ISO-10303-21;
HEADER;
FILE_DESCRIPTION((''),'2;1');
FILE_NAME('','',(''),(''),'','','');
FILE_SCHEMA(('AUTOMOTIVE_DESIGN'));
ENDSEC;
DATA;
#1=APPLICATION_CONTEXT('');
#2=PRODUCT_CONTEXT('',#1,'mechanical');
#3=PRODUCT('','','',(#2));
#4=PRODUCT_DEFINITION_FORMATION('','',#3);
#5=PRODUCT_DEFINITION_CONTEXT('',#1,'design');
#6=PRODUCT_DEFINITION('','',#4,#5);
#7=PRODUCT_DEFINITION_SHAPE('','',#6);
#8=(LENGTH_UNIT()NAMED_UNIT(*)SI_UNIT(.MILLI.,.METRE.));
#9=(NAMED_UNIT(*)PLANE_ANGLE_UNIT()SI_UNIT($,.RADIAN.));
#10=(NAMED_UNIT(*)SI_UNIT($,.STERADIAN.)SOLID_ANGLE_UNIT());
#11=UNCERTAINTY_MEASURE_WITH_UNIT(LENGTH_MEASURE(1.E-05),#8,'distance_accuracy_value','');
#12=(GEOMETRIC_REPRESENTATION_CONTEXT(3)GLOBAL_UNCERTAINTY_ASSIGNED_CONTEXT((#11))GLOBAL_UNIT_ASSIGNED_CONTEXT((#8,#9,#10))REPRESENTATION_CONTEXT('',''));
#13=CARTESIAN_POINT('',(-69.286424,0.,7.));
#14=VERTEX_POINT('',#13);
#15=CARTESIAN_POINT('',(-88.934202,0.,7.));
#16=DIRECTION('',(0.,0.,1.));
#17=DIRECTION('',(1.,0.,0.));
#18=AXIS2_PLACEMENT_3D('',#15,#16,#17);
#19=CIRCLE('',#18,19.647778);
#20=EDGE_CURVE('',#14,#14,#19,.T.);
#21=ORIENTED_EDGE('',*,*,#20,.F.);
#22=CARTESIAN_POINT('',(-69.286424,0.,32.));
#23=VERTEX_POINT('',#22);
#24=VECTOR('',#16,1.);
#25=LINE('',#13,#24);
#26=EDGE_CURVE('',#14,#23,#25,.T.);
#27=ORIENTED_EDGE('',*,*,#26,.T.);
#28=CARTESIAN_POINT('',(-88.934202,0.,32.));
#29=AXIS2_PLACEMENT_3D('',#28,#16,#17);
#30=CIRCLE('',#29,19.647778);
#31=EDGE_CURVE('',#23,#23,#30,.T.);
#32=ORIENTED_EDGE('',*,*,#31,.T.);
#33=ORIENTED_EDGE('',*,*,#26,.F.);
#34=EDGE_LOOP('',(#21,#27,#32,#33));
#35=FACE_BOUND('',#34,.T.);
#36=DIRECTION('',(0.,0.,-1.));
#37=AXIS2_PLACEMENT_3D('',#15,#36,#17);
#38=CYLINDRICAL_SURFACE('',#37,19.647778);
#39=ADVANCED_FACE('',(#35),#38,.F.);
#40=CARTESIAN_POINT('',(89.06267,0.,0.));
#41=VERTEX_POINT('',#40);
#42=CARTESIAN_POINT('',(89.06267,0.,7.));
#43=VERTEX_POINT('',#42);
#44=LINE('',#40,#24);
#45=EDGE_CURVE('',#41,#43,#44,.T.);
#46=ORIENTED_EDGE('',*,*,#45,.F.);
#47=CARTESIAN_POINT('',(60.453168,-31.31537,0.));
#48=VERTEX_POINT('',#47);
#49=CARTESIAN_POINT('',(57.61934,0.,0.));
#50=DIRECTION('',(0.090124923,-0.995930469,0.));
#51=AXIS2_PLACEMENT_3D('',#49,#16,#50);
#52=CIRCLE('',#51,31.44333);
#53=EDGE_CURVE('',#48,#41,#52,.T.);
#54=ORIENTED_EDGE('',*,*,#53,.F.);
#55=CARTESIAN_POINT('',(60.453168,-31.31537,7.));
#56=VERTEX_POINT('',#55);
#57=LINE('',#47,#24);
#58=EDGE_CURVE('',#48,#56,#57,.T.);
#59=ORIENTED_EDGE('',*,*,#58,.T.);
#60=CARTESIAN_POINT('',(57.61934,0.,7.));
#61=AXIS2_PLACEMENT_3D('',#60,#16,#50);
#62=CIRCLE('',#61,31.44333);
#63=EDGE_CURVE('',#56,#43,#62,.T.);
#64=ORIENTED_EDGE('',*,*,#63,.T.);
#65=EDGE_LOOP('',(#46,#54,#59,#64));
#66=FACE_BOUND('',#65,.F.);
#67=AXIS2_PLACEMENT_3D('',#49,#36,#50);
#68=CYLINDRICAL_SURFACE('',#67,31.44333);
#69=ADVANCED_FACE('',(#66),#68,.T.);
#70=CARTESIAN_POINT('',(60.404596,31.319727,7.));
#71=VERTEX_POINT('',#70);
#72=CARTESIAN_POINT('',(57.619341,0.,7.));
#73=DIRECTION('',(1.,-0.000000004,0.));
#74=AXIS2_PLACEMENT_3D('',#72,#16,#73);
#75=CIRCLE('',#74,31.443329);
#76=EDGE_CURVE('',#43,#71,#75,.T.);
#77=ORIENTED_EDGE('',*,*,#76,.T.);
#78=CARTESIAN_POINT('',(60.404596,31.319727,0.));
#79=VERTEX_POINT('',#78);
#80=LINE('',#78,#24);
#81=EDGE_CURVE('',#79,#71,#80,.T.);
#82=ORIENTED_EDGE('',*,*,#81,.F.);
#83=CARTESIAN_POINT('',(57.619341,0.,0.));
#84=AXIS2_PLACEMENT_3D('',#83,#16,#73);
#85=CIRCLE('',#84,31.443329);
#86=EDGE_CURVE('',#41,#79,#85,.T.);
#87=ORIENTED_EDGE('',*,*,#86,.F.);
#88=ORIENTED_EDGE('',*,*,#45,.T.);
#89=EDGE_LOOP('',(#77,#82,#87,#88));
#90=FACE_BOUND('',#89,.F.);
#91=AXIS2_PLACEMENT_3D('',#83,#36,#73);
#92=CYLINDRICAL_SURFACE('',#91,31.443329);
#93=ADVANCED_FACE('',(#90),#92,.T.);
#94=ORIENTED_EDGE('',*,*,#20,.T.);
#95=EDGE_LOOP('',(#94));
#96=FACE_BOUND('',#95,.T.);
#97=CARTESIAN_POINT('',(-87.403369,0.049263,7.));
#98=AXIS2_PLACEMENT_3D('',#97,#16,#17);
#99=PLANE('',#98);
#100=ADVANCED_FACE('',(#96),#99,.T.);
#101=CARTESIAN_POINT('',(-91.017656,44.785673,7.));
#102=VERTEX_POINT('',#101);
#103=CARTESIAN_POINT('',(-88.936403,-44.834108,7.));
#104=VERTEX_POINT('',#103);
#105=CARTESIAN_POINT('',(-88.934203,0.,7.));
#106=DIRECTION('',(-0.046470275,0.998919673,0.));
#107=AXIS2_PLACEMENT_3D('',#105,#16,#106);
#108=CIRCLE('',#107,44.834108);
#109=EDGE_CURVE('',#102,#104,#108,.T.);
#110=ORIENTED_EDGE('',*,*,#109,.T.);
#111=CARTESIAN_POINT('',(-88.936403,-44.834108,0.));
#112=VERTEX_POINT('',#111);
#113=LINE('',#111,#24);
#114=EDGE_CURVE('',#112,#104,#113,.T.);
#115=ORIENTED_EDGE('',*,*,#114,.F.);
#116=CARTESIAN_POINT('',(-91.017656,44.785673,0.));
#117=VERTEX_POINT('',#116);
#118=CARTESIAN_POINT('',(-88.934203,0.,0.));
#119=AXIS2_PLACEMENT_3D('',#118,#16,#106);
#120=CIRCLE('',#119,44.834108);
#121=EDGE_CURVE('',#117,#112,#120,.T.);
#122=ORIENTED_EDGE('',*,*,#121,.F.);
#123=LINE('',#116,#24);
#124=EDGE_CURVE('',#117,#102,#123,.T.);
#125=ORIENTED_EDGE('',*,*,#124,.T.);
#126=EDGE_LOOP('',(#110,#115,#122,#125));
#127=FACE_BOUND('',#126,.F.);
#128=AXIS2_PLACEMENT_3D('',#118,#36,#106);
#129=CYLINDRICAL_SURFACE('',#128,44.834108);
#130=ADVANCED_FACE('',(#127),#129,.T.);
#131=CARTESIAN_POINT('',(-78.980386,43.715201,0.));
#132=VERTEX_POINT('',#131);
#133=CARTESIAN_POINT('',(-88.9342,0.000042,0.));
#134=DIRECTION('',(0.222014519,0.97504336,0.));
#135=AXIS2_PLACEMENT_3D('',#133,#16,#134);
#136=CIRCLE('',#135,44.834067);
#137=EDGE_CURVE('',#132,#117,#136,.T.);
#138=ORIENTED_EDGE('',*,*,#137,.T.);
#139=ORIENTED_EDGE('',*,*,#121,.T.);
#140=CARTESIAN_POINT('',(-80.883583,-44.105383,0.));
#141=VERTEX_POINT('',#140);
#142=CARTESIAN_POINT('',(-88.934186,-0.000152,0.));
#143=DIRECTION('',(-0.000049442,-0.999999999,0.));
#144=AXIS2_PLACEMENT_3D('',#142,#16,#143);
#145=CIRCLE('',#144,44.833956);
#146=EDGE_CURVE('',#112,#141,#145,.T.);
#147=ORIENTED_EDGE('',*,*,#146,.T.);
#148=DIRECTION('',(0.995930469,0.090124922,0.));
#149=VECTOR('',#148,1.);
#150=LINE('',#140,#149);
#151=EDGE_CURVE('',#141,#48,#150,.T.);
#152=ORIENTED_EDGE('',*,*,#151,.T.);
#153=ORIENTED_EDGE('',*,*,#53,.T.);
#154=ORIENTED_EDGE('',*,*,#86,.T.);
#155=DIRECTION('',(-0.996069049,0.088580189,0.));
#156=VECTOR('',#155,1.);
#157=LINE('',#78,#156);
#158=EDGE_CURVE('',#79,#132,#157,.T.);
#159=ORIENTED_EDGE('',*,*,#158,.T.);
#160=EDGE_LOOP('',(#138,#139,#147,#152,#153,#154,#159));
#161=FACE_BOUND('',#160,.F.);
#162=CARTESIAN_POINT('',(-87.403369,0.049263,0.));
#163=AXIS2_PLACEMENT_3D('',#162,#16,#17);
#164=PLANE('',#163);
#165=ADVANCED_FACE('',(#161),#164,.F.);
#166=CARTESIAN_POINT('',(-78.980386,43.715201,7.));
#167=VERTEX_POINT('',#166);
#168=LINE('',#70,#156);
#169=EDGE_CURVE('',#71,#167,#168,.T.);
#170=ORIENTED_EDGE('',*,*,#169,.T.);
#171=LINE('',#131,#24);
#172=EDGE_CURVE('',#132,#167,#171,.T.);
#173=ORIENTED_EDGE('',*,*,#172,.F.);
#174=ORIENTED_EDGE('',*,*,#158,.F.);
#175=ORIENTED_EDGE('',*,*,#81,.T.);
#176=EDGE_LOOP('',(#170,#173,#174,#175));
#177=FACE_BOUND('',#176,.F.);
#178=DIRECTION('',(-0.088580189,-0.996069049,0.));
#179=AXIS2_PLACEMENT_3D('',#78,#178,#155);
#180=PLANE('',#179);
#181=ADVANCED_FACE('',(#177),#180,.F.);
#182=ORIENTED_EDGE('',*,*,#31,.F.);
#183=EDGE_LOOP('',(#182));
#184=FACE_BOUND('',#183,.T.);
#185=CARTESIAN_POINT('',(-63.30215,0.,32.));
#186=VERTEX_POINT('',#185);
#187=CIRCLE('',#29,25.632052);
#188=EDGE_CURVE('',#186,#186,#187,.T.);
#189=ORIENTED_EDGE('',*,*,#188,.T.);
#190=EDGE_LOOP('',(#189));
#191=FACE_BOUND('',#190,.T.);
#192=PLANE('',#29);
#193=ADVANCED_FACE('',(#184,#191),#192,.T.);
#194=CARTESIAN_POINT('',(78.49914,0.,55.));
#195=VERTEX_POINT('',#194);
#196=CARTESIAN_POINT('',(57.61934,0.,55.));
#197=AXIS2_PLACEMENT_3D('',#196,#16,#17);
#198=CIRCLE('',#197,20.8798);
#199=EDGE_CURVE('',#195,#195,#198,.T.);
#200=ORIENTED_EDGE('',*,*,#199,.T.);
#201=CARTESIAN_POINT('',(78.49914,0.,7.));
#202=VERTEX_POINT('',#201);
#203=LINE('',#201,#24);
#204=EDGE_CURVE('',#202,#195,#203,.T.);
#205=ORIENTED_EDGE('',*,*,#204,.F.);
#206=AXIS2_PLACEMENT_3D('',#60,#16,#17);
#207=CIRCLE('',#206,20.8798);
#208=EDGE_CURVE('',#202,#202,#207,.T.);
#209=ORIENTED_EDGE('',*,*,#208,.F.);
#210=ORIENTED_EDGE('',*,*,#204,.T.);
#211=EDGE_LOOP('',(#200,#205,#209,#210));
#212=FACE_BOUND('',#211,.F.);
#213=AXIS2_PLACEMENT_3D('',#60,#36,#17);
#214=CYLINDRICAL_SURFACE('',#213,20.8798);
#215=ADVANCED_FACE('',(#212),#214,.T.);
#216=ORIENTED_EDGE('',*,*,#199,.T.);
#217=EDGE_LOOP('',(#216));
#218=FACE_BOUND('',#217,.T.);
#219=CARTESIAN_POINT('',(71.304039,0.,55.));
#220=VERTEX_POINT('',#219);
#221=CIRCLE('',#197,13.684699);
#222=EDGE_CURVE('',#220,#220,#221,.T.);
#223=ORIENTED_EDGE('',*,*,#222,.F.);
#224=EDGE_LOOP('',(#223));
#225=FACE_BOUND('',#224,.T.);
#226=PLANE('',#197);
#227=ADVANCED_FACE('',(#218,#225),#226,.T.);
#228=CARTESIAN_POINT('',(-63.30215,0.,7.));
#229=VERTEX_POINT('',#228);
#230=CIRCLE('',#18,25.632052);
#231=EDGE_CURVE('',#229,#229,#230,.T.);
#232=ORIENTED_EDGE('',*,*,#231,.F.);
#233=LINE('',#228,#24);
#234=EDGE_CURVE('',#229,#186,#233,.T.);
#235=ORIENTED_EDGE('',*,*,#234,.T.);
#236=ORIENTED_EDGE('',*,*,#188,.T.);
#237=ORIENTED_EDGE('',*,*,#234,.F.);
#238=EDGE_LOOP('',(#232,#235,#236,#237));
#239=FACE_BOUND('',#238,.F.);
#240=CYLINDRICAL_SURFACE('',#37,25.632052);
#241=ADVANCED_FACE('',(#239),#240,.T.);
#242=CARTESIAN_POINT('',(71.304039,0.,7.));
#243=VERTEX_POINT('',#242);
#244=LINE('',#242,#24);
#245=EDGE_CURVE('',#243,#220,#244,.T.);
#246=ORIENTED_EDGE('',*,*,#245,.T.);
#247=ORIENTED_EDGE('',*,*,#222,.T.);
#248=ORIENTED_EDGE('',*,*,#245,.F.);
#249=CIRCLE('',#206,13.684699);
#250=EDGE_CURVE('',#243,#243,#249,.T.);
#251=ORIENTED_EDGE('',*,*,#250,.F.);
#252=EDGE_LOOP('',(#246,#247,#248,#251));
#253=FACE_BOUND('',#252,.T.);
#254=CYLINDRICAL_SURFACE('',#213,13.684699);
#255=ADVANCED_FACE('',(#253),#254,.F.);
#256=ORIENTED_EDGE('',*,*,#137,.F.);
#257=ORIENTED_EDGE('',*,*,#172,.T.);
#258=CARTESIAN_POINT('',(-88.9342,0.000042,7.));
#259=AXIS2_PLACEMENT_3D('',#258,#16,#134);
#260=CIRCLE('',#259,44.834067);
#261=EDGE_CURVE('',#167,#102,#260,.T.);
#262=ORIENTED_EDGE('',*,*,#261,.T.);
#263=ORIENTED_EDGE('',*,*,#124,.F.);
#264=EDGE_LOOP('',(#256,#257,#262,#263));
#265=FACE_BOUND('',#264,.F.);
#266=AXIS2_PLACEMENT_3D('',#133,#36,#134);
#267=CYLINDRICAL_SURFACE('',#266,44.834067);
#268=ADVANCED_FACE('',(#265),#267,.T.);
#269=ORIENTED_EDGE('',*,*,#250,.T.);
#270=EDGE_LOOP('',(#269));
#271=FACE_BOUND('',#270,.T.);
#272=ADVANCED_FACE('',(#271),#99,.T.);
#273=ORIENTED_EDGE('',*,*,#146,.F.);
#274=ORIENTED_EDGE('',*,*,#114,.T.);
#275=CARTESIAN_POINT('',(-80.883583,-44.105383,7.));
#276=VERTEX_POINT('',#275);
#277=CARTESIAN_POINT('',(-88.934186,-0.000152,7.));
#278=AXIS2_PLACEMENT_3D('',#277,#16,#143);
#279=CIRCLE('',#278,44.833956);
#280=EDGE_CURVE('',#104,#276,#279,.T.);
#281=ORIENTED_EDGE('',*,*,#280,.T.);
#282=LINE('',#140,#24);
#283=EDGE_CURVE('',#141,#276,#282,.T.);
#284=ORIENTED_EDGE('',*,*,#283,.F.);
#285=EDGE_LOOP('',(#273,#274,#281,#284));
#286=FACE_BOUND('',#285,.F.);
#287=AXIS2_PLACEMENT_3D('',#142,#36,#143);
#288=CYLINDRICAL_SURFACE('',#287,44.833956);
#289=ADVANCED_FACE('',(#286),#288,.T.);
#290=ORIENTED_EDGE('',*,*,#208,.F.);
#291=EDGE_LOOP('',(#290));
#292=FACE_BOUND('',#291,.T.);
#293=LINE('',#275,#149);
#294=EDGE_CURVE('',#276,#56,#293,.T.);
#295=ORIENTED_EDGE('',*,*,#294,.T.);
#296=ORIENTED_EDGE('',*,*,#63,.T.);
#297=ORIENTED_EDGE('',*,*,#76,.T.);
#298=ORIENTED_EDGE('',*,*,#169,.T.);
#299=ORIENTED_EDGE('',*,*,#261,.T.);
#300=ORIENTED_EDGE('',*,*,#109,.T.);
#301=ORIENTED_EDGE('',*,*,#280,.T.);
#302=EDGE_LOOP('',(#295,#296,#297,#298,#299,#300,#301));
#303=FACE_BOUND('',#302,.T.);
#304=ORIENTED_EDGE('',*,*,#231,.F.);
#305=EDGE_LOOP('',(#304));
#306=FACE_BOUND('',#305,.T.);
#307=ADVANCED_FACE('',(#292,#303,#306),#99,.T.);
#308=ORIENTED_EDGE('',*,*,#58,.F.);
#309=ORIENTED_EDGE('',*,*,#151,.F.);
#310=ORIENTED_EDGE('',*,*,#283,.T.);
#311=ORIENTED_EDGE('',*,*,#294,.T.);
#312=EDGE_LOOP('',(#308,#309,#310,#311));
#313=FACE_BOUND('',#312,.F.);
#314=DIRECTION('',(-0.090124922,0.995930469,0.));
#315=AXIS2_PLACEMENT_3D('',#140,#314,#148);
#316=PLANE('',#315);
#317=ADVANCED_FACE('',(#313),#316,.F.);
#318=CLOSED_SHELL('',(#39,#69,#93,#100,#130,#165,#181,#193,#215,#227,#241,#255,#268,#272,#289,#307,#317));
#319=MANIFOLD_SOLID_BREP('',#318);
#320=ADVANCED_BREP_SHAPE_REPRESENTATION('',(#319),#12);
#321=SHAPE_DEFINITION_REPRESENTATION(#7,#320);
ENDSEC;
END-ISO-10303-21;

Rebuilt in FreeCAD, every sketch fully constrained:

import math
import FreeCAD as App
import Part
import Sketcher

V = App.Vector
Q = App.Units.Quantity

doc = App.newDocument("Part")
body = doc.addObject("PartDesign::Body", "Body")

# Sketch on XY plane
sketch1 = doc.addObject("Sketcher::SketchObject", "Sketch")
body.addObject(sketch1)
sketch1.AttachmentSupport = (doc.XY_Plane, [""])
sketch1.MapMode = "FlatFace"
sketch1.addGeometry([
    Part.ArcOfCircle(Part.Circle(V(-88.934203, 0, 0), V(0, 0, 1), 44.834108), math.radians(92.66351), math.radians(269.997188)),  # 0
    Part.ArcOfCircle(Part.Circle(V(-88.934186, -0.000152, 0), V(0, 0, 1), 44.833956), math.radians(-90.002833), math.radians(-79.655584)),  # 1
    Part.LineSegment(V(-80.883583, -44.105383, 0), V(60.453168, -31.31537, 0)),  # 2
    Part.ArcOfCircle(Part.Circle(V(57.61934, 0, 0), V(0, 0, 1), 31.44333), math.radians(-84.829206), math.radians(0)),  # 3
    Part.ArcOfCircle(Part.Circle(V(57.619341, 0, 0), V(0, 0, 1), 31.443329), math.radians(0), math.radians(84.91807)),  # 4
    Part.LineSegment(V(60.404596, 31.319727, 0), V(-78.980386, 43.715201, 0)),  # 5
    Part.ArcOfCircle(Part.Circle(V(-88.9342, 0.000042, 0), V(0, 0, 1), 44.834067), math.radians(77.172617), math.radians(92.663516)),  # 6
], False)
sketch1.addConstraint([
    Sketcher.Constraint("Coincident", 0, 2, 1, 1),
    Sketcher.Constraint("Coincident", 1, 2, 2, 1),
    Sketcher.Constraint("Coincident", 2, 2, 3, 1),
    Sketcher.Constraint("Coincident", 3, 2, 4, 1),
    Sketcher.Constraint("Coincident", 4, 2, 5, 1),
    Sketcher.Constraint("Coincident", 5, 2, 6, 1),
    Sketcher.Constraint("Coincident", 6, 2, 0, 1),
    Sketcher.Constraint("Coincident", 4, 3, 3, 3),
    Sketcher.Constraint("PointOnObject", 0, 3, -1),
    Sketcher.Constraint("PointOnObject", 3, 3, -1),
    Sketcher.Constraint("PointOnObject", 3, 2, -1),
    Sketcher.Constraint("Radius", 0, Q("44.834108 mm")),
    Sketcher.Constraint("Radius", 3, Q("31.44333 mm")),
    Sketcher.Constraint("Radius", 1, Q("44.833956 mm")),
    Sketcher.Constraint("Radius", 6, Q("44.834067 mm")),
    Sketcher.Constraint("DistanceX", 6, 3, -1, 1, Q("88.9342 mm")),
    Sketcher.Constraint("DistanceY", -1, 1, 5, 2, Q("43.715201 mm")),
    Sketcher.Constraint("DistanceX", 0, 2, 0, 3, Q("0.0022 mm")),
    Sketcher.Constraint("DistanceX", 2, 2, 3, 2, Q("28.609502 mm")),
    Sketcher.Constraint("DistanceX", 1, 3, 5, 2, Q("9.9538 mm")),
    Sketcher.Constraint("Distance", 5, Q("139.93506 mm")),
    Sketcher.Constraint("DistanceX", -1, 1, 3, 3, Q("57.61934 mm")),
    Sketcher.Constraint("DistanceY", 0, 2, 6, 3, Q("44.83415 mm")),
    Sketcher.Constraint("DistanceX", 0, 2, 1, 2, Q("8.05282 mm")),
    Sketcher.Constraint("DistanceX", 6, 2, 5, 2, Q("12.03727 mm")),
])
pad1 = doc.addObject("PartDesign::Pad", "Pad")
body.addObject(pad1)
pad1.Profile = sketch1
pad1.Length = 7

# Sketch on XY plane
sketch2 = doc.addObject("Sketcher::SketchObject", "Sketch001")
body.addObject(sketch2)
sketch2.AttachmentSupport = (doc.XY_Plane, [""])
sketch2.MapMode = "FlatFace"
sketch2.AttachmentOffset = App.Placement(V(0, 0, 7), App.Rotation())
sketch2.addGeometry([
    Part.Circle(V(58, 0, 0), V(0, 0, 1), 21),
    Part.Circle(V(58, 0, 0), V(0, 0, 1), 14),
], False)
sketch2.addConstraint([
    Sketcher.Constraint("Coincident", 1, 3, 0, 3),
    Sketcher.Constraint("PointOnObject", 0, 3, -1),
    Sketcher.Constraint("Diameter", 0, Q("41.7596 mm")),
    Sketcher.Constraint("Diameter", 1, Q("27.369398 mm")),
    Sketcher.Constraint("DistanceX", -1, 1, 0, 3, Q("57.61934 mm")),
])
pad2 = doc.addObject("PartDesign::Pad", "Pad001")
body.addObject(pad2)
pad2.Profile = sketch2
pad2.Length = 48

# Sketch on XY plane
sketch3 = doc.addObject("Sketcher::SketchObject", "Sketch002")
body.addObject(sketch3)
sketch3.AttachmentSupport = (doc.XY_Plane, [""])
sketch3.MapMode = "FlatFace"
sketch3.AttachmentOffset = App.Placement(V(0, 0, 7), App.Rotation())
sketch3.addGeometry([
    Part.Circle(V(-89, 0, 0), V(0, 0, 1), 26),
    Part.Circle(V(-89, 0, 0), V(0, 0, 1), 20),
], False)
sketch3.addConstraint([
    Sketcher.Constraint("Coincident", 1, 3, 0, 3),
    Sketcher.Constraint("PointOnObject", 0, 3, -1),
    Sketcher.Constraint("Diameter", 0, Q("51.264104 mm")),
    Sketcher.Constraint("Diameter", 1, Q("39.295556 mm")),
    Sketcher.Constraint("DistanceX", 0, 3, -1, 1, Q("88.934202 mm")),
])
pad3 = doc.addObject("PartDesign::Pad", "Pad002")
body.addObject(pad3)
pad3.Profile = sketch3
pad3.Length = 25

doc.recompute()
